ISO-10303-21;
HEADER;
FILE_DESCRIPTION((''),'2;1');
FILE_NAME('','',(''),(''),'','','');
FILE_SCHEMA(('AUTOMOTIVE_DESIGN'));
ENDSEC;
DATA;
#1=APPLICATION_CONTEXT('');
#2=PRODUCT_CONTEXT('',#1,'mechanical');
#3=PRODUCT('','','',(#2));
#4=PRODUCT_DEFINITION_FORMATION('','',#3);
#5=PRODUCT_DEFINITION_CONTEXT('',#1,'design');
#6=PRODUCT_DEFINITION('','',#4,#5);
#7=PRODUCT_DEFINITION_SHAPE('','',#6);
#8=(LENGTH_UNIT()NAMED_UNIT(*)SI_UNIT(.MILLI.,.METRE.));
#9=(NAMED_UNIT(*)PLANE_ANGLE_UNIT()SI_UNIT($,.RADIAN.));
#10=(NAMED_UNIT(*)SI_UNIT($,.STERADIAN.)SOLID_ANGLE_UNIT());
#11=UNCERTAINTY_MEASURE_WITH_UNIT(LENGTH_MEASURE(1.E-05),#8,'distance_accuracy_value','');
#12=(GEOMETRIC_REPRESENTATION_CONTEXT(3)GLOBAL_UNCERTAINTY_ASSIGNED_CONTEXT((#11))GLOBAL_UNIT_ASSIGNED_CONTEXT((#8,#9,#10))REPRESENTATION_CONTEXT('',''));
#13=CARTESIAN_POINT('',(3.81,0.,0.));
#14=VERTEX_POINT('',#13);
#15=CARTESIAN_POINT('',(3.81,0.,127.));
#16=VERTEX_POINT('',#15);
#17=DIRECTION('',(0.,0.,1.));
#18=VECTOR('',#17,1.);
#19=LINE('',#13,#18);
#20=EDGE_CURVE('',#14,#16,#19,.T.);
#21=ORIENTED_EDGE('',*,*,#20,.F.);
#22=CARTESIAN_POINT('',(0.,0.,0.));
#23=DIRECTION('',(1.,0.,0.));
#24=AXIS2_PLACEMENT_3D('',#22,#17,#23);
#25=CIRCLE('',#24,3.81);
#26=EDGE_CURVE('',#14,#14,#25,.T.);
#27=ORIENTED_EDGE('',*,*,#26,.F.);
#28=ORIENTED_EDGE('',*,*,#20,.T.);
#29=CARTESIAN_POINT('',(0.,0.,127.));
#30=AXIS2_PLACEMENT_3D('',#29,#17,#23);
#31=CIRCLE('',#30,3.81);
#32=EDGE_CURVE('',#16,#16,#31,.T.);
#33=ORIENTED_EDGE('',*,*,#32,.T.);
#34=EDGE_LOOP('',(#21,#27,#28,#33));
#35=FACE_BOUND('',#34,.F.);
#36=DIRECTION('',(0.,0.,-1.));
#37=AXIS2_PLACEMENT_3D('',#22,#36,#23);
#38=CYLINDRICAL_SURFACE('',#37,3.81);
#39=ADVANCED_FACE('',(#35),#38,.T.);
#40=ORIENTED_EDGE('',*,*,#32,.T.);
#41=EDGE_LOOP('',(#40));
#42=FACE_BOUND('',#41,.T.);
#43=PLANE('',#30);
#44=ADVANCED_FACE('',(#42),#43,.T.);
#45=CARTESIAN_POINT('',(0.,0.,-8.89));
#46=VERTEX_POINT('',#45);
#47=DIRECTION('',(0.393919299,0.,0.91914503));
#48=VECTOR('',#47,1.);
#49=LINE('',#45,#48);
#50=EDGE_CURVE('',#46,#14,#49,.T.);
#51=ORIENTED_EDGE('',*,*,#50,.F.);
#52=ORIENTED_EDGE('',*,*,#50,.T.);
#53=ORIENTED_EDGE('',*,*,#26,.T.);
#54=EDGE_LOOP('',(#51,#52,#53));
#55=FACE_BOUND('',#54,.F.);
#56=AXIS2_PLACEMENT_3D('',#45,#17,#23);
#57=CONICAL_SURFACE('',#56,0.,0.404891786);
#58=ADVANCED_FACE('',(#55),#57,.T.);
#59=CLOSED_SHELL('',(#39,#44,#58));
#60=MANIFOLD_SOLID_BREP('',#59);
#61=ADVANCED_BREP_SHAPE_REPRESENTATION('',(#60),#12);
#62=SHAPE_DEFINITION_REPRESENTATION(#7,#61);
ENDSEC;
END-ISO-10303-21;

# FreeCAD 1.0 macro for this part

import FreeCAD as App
import Part
import Sketcher

V = App.Vector
Q = App.Units.Quantity

doc = App.newDocument("Part")
body = doc.addObject("PartDesign::Body", "Body")

# Sketch on XY plane
sketch1 = body.newObject("Sketcher::SketchObject", "Sketch")
sketch1.AttachmentSupport = (doc.getObject("XY_Plane"), [""])
sketch1.MapMode = "FlatFace"
sketch1.addGeometry(Part.Circle(V(0, 0, 0), V(0, 0, 1), 3.81), False)
sketch1.addConstraint([
    Sketcher.Constraint("Coincident", 0, 3, -1, 1),
    Sketcher.Constraint("Diameter", 0, Q("0.3 in")),
])
pad1 = body.newObject("PartDesign::Pad", "Pad")
pad1.Profile = sketch1
pad1.Length = Q("5 in")

# Sketch on XZ plane
sketch2 = body.newObject("Sketcher::SketchObject", "Sketch001")
sketch2.AttachmentSupport = (doc.getObject("XZ_Plane"), [""])
sketch2.MapMode = "FlatFace"
sketch2.addGeometry([
    Part.LineSegment(V(3.81, 0, 0), V(0, 0, 0)),
    Part.LineSegment(V(0, 0, 0), V(0, -8.89, 0)),
    Part.LineSegment(V(0, -8.89, 0), V(3.81, 0, 0)),
], False)
sketch2.addConstraint([
    Sketcher.Constraint("Coincident", 0, 2, 1, 1),
    Sketcher.Constraint("Coincident", 1, 2, 2, 1),
    Sketcher.Constraint("Coincident", 2, 2, 0, 1),
    Sketcher.Constraint("Horizontal", 0),
    Sketcher.Constraint("Vertical", 1),
    Sketcher.Constraint("Coincident", 0, 2, -1, 1),
    Sketcher.Constraint("DistanceX", 0, 2, 0, 1, Q("0.15 in")),
    Sketcher.Constraint("DistanceY", 1, 2, 1, 1, Q("0.35 in")),
])
revolution = body.newObject("PartDesign::Revolution", "Revolution")
revolution.Profile = sketch2
revolution.ReferenceAxis = (sketch2, ["V_Axis"])
revolution.Angle = 360

doc.recompute()
